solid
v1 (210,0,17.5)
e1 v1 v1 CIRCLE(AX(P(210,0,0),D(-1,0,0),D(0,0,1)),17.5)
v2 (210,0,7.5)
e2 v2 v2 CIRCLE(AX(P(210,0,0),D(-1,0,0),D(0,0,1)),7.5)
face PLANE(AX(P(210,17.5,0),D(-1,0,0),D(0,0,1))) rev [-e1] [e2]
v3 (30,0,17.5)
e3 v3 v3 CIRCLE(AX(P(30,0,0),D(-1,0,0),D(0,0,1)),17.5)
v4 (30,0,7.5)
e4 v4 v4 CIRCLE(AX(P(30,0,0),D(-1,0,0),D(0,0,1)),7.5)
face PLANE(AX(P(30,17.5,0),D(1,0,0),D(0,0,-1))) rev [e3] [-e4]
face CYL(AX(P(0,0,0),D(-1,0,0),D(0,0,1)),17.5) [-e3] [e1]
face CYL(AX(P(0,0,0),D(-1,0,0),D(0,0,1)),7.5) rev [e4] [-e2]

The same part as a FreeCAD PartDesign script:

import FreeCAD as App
import Part
import Sketcher
Q = App.Units.Quantity

doc = App.newDocument("Part")
body = doc.addObject("PartDesign::Body", "Body")

# Sketch on XY plane
sketch1 = doc.addObject("Sketcher::SketchObject", "Sketch")
body.addObject(sketch1)
sketch1.AttachmentSupport = (doc.XY_Plane, [""])
sketch1.MapMode = "FlatFace"
sketch1.addGeometry(Part.LineSegment(App.Vector(30, 17.5, 0), App.Vector(30, 7.5, 0)), False)
sketch1.addGeometry(Part.LineSegment(App.Vector(30, 7.5, 0), App.Vector(210, 7.5, 0)), False)
sketch1.addGeometry(Part.LineSegment(App.Vector(210, 7.5, 0), App.Vector(210, 17.5, 0)), False)
sketch1.addGeometry(Part.LineSegment(App.Vector(210, 17.5, 0), App.Vector(30, 17.5, 0)), False)
sketch1.addConstraint(Sketcher.Constraint("Coincident", 0, 2, 1, 1))
sketch1.addConstraint(Sketcher.Constraint("Coincident", 1, 2, 2, 1))
sketch1.addConstraint(Sketcher.Constraint("Coincident", 2, 2, 3, 1))
sketch1.addConstraint(Sketcher.Constraint("Coincident", 3, 2, 0, 1))
sketch1.addConstraint(Sketcher.Constraint("Vertical", 0))
sketch1.addConstraint(Sketcher.Constraint("Horizontal", 1))
sketch1.addConstraint(Sketcher.Constraint("Vertical", 2))
sketch1.addConstraint(Sketcher.Constraint("Horizontal", 3))
sketch1.addConstraint(Sketcher.Constraint("DistanceX", 1, 1, 1, 2, Q("180 mm")))
sketch1.addConstraint(Sketcher.Constraint("DistanceY", 0, 2, 0, 1, Q("10 mm")))
sketch1.addConstraint(Sketcher.Constraint("DistanceX", -1, 1, 0, 2, Q("30 mm")))
sketch1.addConstraint(Sketcher.Constraint("DistanceY", -1, 1, 0, 2, Q("7.5 mm")))
revolution = doc.addObject("PartDesign::Revolution", "Revolution")
body.addObject(revolution)
revolution.Profile = sketch1
revolution.ReferenceAxis = (sketch1, ["H_Axis"])
revolution.Angle = 360

doc.recompute()
